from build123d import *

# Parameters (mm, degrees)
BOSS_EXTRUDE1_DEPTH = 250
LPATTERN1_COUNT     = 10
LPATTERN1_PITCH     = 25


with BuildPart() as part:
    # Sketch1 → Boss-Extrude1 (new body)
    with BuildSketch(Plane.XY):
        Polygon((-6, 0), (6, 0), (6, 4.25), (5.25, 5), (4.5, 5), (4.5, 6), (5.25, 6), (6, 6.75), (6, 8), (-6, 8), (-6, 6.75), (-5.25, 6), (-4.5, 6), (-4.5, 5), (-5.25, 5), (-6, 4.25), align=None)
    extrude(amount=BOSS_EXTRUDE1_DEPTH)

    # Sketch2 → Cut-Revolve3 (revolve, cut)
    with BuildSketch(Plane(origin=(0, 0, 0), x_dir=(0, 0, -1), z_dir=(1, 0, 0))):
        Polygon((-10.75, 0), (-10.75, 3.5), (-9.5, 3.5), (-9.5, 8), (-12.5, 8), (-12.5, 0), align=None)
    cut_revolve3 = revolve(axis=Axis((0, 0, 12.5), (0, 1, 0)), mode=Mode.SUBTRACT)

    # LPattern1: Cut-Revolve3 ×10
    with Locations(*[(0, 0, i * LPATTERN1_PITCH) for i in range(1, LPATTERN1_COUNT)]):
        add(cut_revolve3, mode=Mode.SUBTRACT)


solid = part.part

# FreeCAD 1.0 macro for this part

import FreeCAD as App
import Part
import Sketcher
Q = App.Units.Quantity


def add_polygon(sketch, points):
    """Adds a closed chain of lines whose ends are joined by coincident constraints."""
    first, n = sketch.GeometryCount, len(points)
    for a, b in zip(points, points[1:] + points[:1]):
        sketch.addGeometry(Part.LineSegment(App.Vector(*a, 0), App.Vector(*b, 0)), False)
    for i in range(n):
        sketch.addConstraint(Sketcher.Constraint("Coincident", first + i, 2, first + (i + 1) % n, 1))

doc = App.newDocument("Part")
params = doc.addObject("Spreadsheet::Sheet", "Params")
for row, (alias, value) in enumerate([
    ("sketch1_width", "12 mm"),
    ("sketch1_height", "1 mm"),
    ("sketch1_width2", "0.75 mm"),
    ("pad1_length", "250 mm"),
    ("sketch2_width", "8 mm"),
    ("sketch2_height", "3 mm"),
    ("sketch2_width2", "3.5 mm"),
    ("sketch2_height2", "1.25 mm"),
    ("groove_angle", "360 deg"),
    ("linearpattern_pitch", "25 mm"),
], start=1):
    params.set(f"A{row}", alias)
    params.set(f"B{row}", "=" + value)
    params.setAlias(f"B{row}", alias)

body = doc.addObject("PartDesign::Body", "Body")

sketch1 = body.newObject("Sketcher::SketchObject", "Sketch")
sketch1.AttachmentSupport = (doc.getObject("XY_Plane"), [""])
sketch1.MapMode = "FlatFace"
add_polygon(sketch1, [(-6, 0), (6, 0), (6, 4.2), (5.2, 5), (4.5, 5), (4.5, 6), (5.2, 6), (6, 6.8), (6, 8), (-6, 8), (-6, 6.8), (-5.2, 6), (-4.5, 6), (-4.5, 5), (-5.2, 5), (-6, 4.2)])
sketch1.addConstraint(Sketcher.Constraint("Horizontal", 0))
sketch1.addConstraint(Sketcher.Constraint("Vertical", 1))
sketch1.addConstraint(Sketcher.Constraint("Horizontal", 3))
sketch1.addConstraint(Sketcher.Constraint("Vertical", 4))
sketch1.addConstraint(Sketcher.Constraint("Horizontal", 5))
sketch1.addConstraint(Sketcher.Constraint("Vertical", 7))
sketch1.addConstraint(Sketcher.Constraint("Horizontal", 8))
sketch1.addConstraint(Sketcher.Constraint("Vertical", 9))
sketch1.addConstraint(Sketcher.Constraint("Horizontal", 11))
sketch1.addConstraint(Sketcher.Constraint("Vertical", 12))
sketch1.addConstraint(Sketcher.Constraint("Horizontal", 13))
sketch1.addConstraint(Sketcher.Constraint("Vertical", 15))
sketch1.addConstraint(Sketcher.Constraint("Symmetric", 0, 2, 15, 2, -1, 1))
sketch1.addConstraint(Sketcher.Constraint("Symmetric", 6, 2, 9, 2, -2))
sketch1.addConstraint(Sketcher.Constraint("Symmetric", 5, 2, 10, 2, -2))
sketch1.addConstraint(Sketcher.Constraint("Symmetric", 3, 2, 12, 2, -2))
sketch1.addConstraint(Sketcher.Constraint("Perpendicular", 2, 6))
sketch1.addConstraint(Sketcher.Constraint("Perpendicular", 6, 10))
sketch1.addConstraint(Sketcher.Constraint("Perpendicular", 10, 14))
sketch1.addConstraint(Sketcher.Constraint("Horizontal", 1, 2, 14, 2))
sketch1.addConstraint(Sketcher.Constraint("Vertical", 2, 2, 5, 2))
sketch1.addConstraint(Sketcher.Constraint("Vertical", 1, 2, 6, 2))
sketch1.addConstraint(Sketcher.Constraint("DistanceX", 0, 1, 0, 2, Q("12 mm")))
sketch1.addConstraint(Sketcher.Constraint("DistanceY", 4, 1, 4, 2, Q("1 mm")))
sketch1.addConstraint(Sketcher.Constraint("DistanceY", -1, 1, 2, 2, Q("5 mm")))
sketch1.addConstraint(Sketcher.Constraint("DistanceY", -1, 1, 7, 2, Q("8 mm")))
sketch1.addConstraint(Sketcher.Constraint("DistanceX", 11, 2, 4, 2, Q("9 mm")))
sketch1.addConstraint(Sketcher.Constraint("DistanceX", 3, 2, 3, 1, Q("0.75 mm")))
sketch1.setExpression("Constraints[38]", "Params.sketch1_width")
sketch1.setExpression("Constraints[39]", "Params.sketch1_height")
sketch1.setExpression("Constraints[43]", "Params.sketch1_width2")
pad1 = body.newObject("PartDesign::Pad", "Pad")
pad1.Profile = sketch1
pad1.setExpression("Length", "Params.pad1_length")

sketch2 = body.newObject("Sketcher::SketchObject", "Sketch001")
sketch2.AttachmentSupport = (doc.getObject("YZ_Plane"), [""])
sketch2.MapMode = "FlatFace"
add_polygon(sketch2, [(0, 10.8), (3.5, 10.8), (3.5, 9.5), (8, 9.5), (8, 12.5), (0, 12.5)])
sketch2.addGeometry(Part.LineSegment(App.Vector(0, 12.5, 0), App.Vector(8, 12.5, 0)), True)
sketch2.addConstraint(Sketcher.Constraint("Horizontal", 0))
sketch2.addConstraint(Sketcher.Constraint("Vertical", 1))
sketch2.addConstraint(Sketcher.Constraint("Horizontal", 2))
sketch2.addConstraint(Sketcher.Constraint("Vertical", 3))
sketch2.addConstraint(Sketcher.Constraint("Horizontal", 4))
sketch2.addConstraint(Sketcher.Constraint("Vertical", 5))
sketch2.addConstraint(Sketcher.Constraint("Horizontal", 6))
sketch2.addConstraint(Sketcher.Constraint("Coincident", 6, 1, 4, 2))
sketch2.addConstraint(Sketcher.Constraint("PointOnObject", 4, 2, -2))
sketch2.addConstraint(Sketcher.Constraint("Vertical", 2, 2, 6, 2))
sketch2.addConstraint(Sketcher.Constraint("DistanceX", 4, 2, 4, 1, Q("8 mm")))
sketch2.addConstraint(Sketcher.Constraint("DistanceY", 3, 1, 3, 2, Q("3 mm")))
sketch2.addConstraint(Sketcher.Constraint("DistanceX", 0, 1, 0, 2, Q("3.5 mm")))
sketch2.addConstraint(Sketcher.Constraint("DistanceY", 1, 2, 1, 1, Q("1.25 mm")))
sketch2.addConstraint(Sketcher.Constraint("DistanceY", -1, 1, 1, 2, Q("9.5 mm")))
sketch2.setExpression("Constraints[16]", "Params.sketch2_width")
sketch2.setExpression("Constraints[17]", "Params.sketch2_height")
sketch2.setExpression("Constraints[18]", "Params.sketch2_width2")
sketch2.setExpression("Constraints[19]", "Params.sketch2_height2")
groove = body.newObject("PartDesign::Groove", "Groove")
groove.Profile = sketch2
groove.ReferenceAxis = (sketch2, ["Axis0"])
groove.setExpression("Angle", "Params.groove_angle")
doc.recompute()

linearpattern = body.newObject("PartDesign::LinearPattern", "LinearPattern")
linearpattern.Originals = [groove]
linearpattern.Direction = (doc.getObject("Z_Axis"), [""])
linearpattern.Mode = "offset"
linearpattern.setExpression("Offset", "Params.linearpattern_pitch")
linearpattern.Occurrences = 10
body.Tip = linearpattern

doc.recompute()
